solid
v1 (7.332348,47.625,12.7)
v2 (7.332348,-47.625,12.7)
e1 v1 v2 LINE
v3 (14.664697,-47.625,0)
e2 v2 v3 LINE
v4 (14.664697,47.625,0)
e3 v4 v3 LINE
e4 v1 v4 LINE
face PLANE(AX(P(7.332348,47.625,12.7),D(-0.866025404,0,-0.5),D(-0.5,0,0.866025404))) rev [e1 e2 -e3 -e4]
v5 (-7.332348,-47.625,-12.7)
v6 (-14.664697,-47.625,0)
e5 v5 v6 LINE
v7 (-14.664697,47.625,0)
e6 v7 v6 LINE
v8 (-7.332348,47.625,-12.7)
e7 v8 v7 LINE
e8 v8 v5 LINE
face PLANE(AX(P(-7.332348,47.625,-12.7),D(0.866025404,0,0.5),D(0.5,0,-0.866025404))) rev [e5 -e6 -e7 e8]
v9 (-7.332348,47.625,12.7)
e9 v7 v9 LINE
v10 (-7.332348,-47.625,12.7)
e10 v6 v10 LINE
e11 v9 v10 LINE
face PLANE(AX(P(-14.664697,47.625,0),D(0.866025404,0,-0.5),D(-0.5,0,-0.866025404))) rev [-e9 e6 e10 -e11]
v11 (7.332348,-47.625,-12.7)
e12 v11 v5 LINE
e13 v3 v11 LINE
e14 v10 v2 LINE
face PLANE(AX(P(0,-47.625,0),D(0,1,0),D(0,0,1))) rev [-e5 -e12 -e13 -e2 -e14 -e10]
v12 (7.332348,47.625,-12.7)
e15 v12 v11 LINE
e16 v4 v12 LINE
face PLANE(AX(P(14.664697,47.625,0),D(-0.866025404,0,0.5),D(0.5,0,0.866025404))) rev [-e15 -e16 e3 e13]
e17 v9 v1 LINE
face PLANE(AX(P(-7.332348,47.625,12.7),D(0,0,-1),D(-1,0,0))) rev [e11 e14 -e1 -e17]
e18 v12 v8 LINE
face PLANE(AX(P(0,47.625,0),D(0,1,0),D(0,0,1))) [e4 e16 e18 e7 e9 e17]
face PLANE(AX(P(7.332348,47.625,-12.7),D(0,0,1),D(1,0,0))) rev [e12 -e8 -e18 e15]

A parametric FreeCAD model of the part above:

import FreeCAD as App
import Part
import Sketcher

V = App.Vector
Q = App.Units.Quantity

doc = App.newDocument("Part")
params = doc.addObject("Spreadsheet::Sheet", "Params")
for row, (alias, value) in enumerate([
    ("pad1_length", "3.75 in"),
], start=1):
    params.set(f"A{row}", alias)
    params.set(f"B{row}", "=" + value)
    params.setAlias(f"B{row}", alias)

body = doc.addObject("PartDesign::Body", "Body")

# Sketch on XZ plane
sketch1 = doc.addObject("Sketcher::SketchObject", "Sketch")
body.addObject(sketch1)
sketch1.AttachmentSupport = (doc.XZ_Plane, [""])
sketch1.MapMode = "FlatFace"
sketch1.addGeometry(Part.LineSegment(V(-15, 0, 0), V(-7, 13, 0)), False)
sketch1.addGeometry(Part.LineSegment(V(-7, 13, 0), V(7, 13, 0)), False)
sketch1.addGeometry(Part.LineSegment(V(7, 13, 0), V(15, 0, 0)), False)
sketch1.addGeometry(Part.LineSegment(V(15, 0, 0), V(7, -13, 0)), False)
sketch1.addGeometry(Part.LineSegment(V(7, -13, 0), V(-7, -13, 0)), False)
sketch1.addGeometry(Part.LineSegment(V(-7, -13, 0), V(-15, 0, 0)), False)
sketch1.addConstraint(Sketcher.Constraint("Coincident", 0, 2, 1, 1))
sketch1.addConstraint(Sketcher.Constraint("Coincident", 1, 2, 2, 1))
sketch1.addConstraint(Sketcher.Constraint("Coincident", 2, 2, 3, 1))
sketch1.addConstraint(Sketcher.Constraint("Coincident", 3, 2, 4, 1))
sketch1.addConstraint(Sketcher.Constraint("Coincident", 4, 2, 5, 1))
sketch1.addConstraint(Sketcher.Constraint("Coincident", 5, 2, 0, 1))
sketch1.addConstraint(Sketcher.Constraint("Horizontal", 1))
sketch1.addConstraint(Sketcher.Constraint("Horizontal", 4))
sketch1.addConstraint(Sketcher.Constraint("Symmetric", 0, 2, 3, 2, -1, 1))
sketch1.addConstraint(Sketcher.Constraint("Symmetric", 2, 2, 5, 2, -1, 1))
sketch1.addConstraint(Sketcher.Constraint("PointOnObject", 2, 2, -1))
sketch1.addConstraint(Sketcher.Constraint("Parallel", 2, 5))
sketch1.addConstraint(Sketcher.Constraint("Vertical", 1, 2, 3, 2))
sketch1.addConstraint(Sketcher.Constraint("Angle", 0, Q("60 deg")))
sketch1.addConstraint(Sketcher.Constraint("DistanceY", 3, 2, 1, 2, Q("1 in")))
sketch1.addConstraint(Sketcher.Constraint("DistanceX", 1, 1, 1, 2, 14.664697))
pad1 = doc.addObject("PartDesign::Pad", "Pad")
body.addObject(pad1)
pad1.Profile = sketch1
pad1.setExpression("Length", "Params.pad1_length")
pad1.Midplane = True

doc.recompute()
